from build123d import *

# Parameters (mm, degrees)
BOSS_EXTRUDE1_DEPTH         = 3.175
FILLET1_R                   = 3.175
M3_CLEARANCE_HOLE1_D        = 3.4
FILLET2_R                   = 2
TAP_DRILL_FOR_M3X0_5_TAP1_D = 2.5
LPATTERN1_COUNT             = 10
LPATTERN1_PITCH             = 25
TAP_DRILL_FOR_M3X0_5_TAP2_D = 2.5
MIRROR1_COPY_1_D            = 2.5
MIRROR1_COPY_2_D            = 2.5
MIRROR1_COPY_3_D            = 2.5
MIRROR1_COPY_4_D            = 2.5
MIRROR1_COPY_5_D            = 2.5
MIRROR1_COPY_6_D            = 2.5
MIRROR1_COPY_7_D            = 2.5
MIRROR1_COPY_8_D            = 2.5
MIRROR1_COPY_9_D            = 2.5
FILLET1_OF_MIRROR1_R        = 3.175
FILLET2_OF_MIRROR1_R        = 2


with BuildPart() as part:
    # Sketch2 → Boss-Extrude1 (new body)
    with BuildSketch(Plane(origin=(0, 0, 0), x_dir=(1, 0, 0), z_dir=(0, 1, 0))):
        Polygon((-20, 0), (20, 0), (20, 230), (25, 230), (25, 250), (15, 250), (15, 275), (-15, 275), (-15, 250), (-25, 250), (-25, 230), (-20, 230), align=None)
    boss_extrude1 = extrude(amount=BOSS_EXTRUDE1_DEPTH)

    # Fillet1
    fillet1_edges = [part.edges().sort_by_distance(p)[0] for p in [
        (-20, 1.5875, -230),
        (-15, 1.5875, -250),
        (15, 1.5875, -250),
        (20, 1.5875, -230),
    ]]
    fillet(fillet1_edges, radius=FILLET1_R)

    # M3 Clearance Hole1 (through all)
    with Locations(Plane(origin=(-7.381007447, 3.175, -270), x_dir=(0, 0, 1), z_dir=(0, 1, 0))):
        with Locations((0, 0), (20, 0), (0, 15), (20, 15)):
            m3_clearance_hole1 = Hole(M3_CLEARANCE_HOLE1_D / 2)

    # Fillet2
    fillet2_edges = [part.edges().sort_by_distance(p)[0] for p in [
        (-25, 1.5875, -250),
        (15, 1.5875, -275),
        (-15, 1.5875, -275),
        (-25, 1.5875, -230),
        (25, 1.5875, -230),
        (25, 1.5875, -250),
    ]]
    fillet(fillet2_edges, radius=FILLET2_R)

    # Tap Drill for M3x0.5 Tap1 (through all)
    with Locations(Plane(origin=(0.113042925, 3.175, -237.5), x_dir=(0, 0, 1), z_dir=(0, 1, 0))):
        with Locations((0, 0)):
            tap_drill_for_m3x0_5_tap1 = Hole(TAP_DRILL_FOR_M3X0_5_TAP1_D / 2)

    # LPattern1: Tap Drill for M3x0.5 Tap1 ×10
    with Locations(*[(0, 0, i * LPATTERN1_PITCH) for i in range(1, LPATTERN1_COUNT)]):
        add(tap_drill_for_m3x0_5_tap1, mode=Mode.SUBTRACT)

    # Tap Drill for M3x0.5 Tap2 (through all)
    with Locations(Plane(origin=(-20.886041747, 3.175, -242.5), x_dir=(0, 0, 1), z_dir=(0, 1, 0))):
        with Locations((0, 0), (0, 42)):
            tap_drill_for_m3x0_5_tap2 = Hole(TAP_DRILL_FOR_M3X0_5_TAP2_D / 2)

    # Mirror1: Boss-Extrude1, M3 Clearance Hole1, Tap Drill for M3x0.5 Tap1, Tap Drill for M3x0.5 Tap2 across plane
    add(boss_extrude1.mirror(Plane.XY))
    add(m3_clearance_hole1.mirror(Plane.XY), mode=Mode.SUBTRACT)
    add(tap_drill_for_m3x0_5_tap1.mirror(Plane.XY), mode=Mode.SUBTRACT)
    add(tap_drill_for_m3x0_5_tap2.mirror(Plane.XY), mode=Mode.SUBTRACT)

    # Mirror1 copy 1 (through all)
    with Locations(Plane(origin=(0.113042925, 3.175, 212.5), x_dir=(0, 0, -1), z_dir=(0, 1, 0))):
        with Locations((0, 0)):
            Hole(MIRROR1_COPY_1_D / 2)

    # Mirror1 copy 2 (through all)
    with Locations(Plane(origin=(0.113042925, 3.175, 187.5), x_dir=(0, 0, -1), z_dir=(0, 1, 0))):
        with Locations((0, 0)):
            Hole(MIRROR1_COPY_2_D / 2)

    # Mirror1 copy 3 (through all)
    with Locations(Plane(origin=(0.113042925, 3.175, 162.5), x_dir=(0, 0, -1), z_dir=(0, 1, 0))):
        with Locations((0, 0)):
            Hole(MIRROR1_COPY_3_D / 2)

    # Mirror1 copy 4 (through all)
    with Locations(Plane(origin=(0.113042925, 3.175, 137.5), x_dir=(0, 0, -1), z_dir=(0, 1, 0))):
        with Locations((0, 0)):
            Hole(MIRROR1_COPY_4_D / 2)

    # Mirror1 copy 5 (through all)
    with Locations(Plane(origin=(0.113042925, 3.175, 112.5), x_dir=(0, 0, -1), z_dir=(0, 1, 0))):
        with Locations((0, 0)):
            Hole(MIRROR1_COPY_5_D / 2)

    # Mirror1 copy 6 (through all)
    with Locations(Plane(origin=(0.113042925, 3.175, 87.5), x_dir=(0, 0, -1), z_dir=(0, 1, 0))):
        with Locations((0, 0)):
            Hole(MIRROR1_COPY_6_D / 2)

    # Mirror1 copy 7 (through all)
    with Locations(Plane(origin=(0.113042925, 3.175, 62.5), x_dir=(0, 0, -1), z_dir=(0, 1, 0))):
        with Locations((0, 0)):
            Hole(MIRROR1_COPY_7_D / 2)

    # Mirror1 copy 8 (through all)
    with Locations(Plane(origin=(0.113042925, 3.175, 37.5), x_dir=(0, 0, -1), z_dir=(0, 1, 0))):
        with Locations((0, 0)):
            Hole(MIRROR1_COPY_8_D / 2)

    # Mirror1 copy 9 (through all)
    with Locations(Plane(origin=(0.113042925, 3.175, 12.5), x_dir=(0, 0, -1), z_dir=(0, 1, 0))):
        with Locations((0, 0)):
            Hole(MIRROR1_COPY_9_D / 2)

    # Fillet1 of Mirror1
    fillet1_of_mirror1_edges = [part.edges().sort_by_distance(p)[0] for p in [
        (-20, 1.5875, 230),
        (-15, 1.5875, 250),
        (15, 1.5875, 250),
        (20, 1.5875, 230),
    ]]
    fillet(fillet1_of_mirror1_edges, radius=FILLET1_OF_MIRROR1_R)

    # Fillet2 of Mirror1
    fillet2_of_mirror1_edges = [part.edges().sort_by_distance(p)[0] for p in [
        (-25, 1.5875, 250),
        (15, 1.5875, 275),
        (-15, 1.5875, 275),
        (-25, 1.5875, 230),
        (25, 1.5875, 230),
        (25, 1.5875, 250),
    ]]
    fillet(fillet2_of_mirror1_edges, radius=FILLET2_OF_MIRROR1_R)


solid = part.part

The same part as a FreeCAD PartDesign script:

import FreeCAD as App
import Part
import Sketcher


def edges_at(feature, points):
    """Names of the edges that pass closest to the given points."""
    edges = feature.Shape.Edges
    near = lambda p: min(range(len(edges)), key=lambda i: edges[i].distToShape(Part.Vertex(*p))[0])
    return sorted({f"Edge{near(p) + 1}" for p in points})


def add_polygon(sketch, points):
    """Adds a closed chain of lines whose ends are joined by coincident constraints."""
    first, n = sketch.GeometryCount, len(points)
    for a, b in zip(points, points[1:] + points[:1]):
        sketch.addGeometry(Part.LineSegment(App.Vector(*a, 0), App.Vector(*b, 0)), False)
    for i in range(n):
        sketch.addConstraint(Sketcher.Constraint("Coincident", first + i, 2, first + (i + 1) % n, 1))

doc = App.newDocument("Part")
body = doc.addObject("PartDesign::Body", "Body")

# Sketch on XZ plane
sketch1 = body.newObject("Sketcher::SketchObject", "Sketch")
sketch1.AttachmentSupport = (doc.getObject("XZ_Plane"), [""])
sketch1.MapMode = "FlatFace"
add_polygon(sketch1, [(-20, 0), (20, 0), (20, -230), (25, -230), (25, -250), (15, -250), (15, -275), (-15, -275), (-15, -250), (-25, -250), (-25, -230), (-20, -230)])  # lines 0-11
sketch1.addConstraint([
    Sketcher.Constraint("Horizontal", 0),
    Sketcher.Constraint("Vertical", 1),
    Sketcher.Constraint("Horizontal", 2),
    Sketcher.Constraint("Vertical", 3),
    Sketcher.Constraint("Horizontal", 4),
    Sketcher.Constraint("Vertical", 5),
    Sketcher.Constraint("Horizontal", 6),
    Sketcher.Constraint("Vertical", 7),
    Sketcher.Constraint("Horizontal", 8),
    Sketcher.Constraint("Vertical", 9),
    Sketcher.Constraint("Horizontal", 10),
    Sketcher.Constraint("Vertical", 11),
    Sketcher.Constraint("Symmetric", 0, 2, 11, 2, -1, 1),
    Sketcher.Constraint("Symmetric", 4, 2, 7, 2, -2),
    Sketcher.Constraint("Symmetric", 2, 2, 9, 2, -2),
    Sketcher.Constraint("DistanceX", 0, 1, 0, 2, 40.0),
    Sketcher.Constraint("DistanceX", 2, 1, 2, 2, 5.0),
    Sketcher.Constraint("DistanceX", 4, 2, 4, 1, 10.0),
    Sketcher.Constraint("DistanceY", 1, 2, 1, 1, 230.0),
    Sketcher.Constraint("DistanceY", 3, 2, 3, 1, 20.0),
    Sketcher.Constraint("DistanceY", 5, 2, 5, 1, 25.0),
])
pad1 = body.newObject("PartDesign::Pad", "Pad")
pad1.Profile = sketch1
pad1.Length = 3.175
pad1.Reversed = True
doc.recompute()

fillet = body.newObject("PartDesign::Fillet", "Fillet")
fillet.Base = (pad1, edges_at(pad1, [
    (-20, 1.587, -230),
    (-15, 1.587, -250),
    (15, 1.587, -250),
    (20, 1.587, -230),
]))
fillet.Radius = 3.175

# Sketch on XZ plane
sketch2 = body.newObject("Sketcher::SketchObject", "Sketch001")
sketch2.AttachmentSupport = (doc.getObject("XZ_Plane"), [""])
sketch2.MapMode = "FlatFace"
sketch2.AttachmentOffset = App.Placement(App.Vector(0, 0, -3.175), App.Rotation())
sketch2.addGeometry([
    Part.Circle(App.Vector(-7.4, -270, 0), App.Vector(0, 0, 1), 1.7),
    Part.Circle(App.Vector(-7.4, -250, 0), App.Vector(0, 0, 1), 1.7),
    Part.Circle(App.Vector(7.6, -270, 0), App.Vector(0, 0, 1), 1.7),
    Part.Circle(App.Vector(7.6, -250, 0), App.Vector(0, 0, 1), 1.7),
], False)
sketch2.addConstraint([
    Sketcher.Constraint("Equal", 0, 1),
    Sketcher.Constraint("Equal", 1, 2),
    Sketcher.Constraint("Equal", 2, 3),
    Sketcher.Constraint("Horizontal", 0, 3, 2, 3),
    Sketcher.Constraint("Horizontal", 1, 3, 3, 3),
    Sketcher.Constraint("Vertical", 0, 3, 1, 3),
    Sketcher.Constraint("Vertical", 2, 3, 3, 3),
    Sketcher.Constraint("Diameter", 0, 3.4),
    Sketcher.Constraint("DistanceY", 0, 3, -1, 1, 270.0),
    Sketcher.Constraint("DistanceY", 1, 3, -1, 1, 250.0),
    Sketcher.Constraint("DistanceX", 0, 3, 2, 3, 15.0),
    Sketcher.Constraint("DistanceX", 0, 3, -1, 1, 7.381007),
])
doc.recompute()
hole = body.newObject("PartDesign::Hole", "Hole")
hole.Profile = sketch2
hole.ThreadType = "None"
hole.Diameter = 3.4
hole.DepthType = "ThroughAll"
hole.Reversed = True
doc.recompute()

fillet2 = body.newObject("PartDesign::Fillet", "Fillet001")
fillet2.Base = (hole, edges_at(hole, [
    (-25, 1.587, -250),
    (15, 1.587, -275),
    (-15, 1.587, -275),
    (-25, 1.587, -230),
    (25, 1.587, -230),
    (25, 1.587, -250),
]))
fillet2.Radius = 2

# Sketch on XZ plane
sketch3 = body.newObject("Sketcher::SketchObject", "Sketch002")
sketch3.AttachmentSupport = (doc.getObject("XZ_Plane"), [""])
sketch3.MapMode = "FlatFace"
sketch3.AttachmentOffset = App.Placement(App.Vector(0, 0, -3.175), App.Rotation())
sketch3.addGeometry(Part.Circle(App.Vector(0.1, -237.5, 0), App.Vector(0, 0, 1), 1.2), False)
sketch3.addConstraint([
    Sketcher.Constraint("Diameter", 0, 2.5),
    Sketcher.Constraint("DistanceY", 0, 3, -1, 1, 237.5),
    Sketcher.Constraint("DistanceX", -1, 1, 0, 3, 0.113043),
])
doc.recompute()
hole2 = body.newObject("PartDesign::Hole", "Hole001")
hole2.Profile = sketch3
hole2.ThreadType = "None"
hole2.Diameter = 2.5
hole2.DepthType = "ThroughAll"
hole2.Reversed = True
doc.recompute()

linearpattern = body.newObject("PartDesign::LinearPattern", "LinearPattern")
linearpattern.Originals = [hole2]
linearpattern.Direction = (doc.getObject("Z_Axis"), [""])
linearpattern.Mode = "offset"
linearpattern.Offset = 25
linearpattern.Occurrences = 10
body.Tip = linearpattern

# Sketch on XZ plane
sketch4 = body.newObject("Sketcher::SketchObject", "Sketch003")
sketch4.AttachmentSupport = (doc.getObject("XZ_Plane"), [""])
sketch4.MapMode = "FlatFace"
sketch4.AttachmentOffset = App.Placement(App.Vector(0, 0, -3.175), App.Rotation())
sketch4.addGeometry([
    Part.Circle(App.Vector(-20.9, -242.5, 0), App.Vector(0, 0, 1), 1.2),
    Part.Circle(App.Vector(21.1, -242.5, 0), App.Vector(0, 0, 1), 1.2),
], False)
sketch4.addConstraint([
    Sketcher.Constraint("Equal", 0, 1),
    Sketcher.Constraint("Horizontal", 0, 3, 1, 3),
    Sketcher.Constraint("Diameter", 0, 2.5),
    Sketcher.Constraint("DistanceX", 0, 3, 1, 3, 42.0),
    Sketcher.Constraint("DistanceY", 0, 3, -1, 1, 242.5),
    Sketcher.Constraint("DistanceX", 0, 3, -1, 1, 20.886042),
])
doc.recompute()
hole3 = body.newObject("PartDesign::Hole", "Hole002")
hole3.Profile = sketch4
hole3.ThreadType = "None"
hole3.Diameter = 2.5
hole3.DepthType = "ThroughAll"
hole3.Reversed = True
doc.recompute()

mirrored = body.newObject("PartDesign::Mirrored", "Mirrored")
mirrored.Originals = [pad1, hole, hole2, hole3]
mirrored.MirrorPlane = (doc.getObject("XY_Plane"), [""])
body.Tip = mirrored

# Sketch on XZ plane
sketch5 = body.newObject("Sketcher::SketchObject", "Sketch004")
sketch5.AttachmentSupport = (doc.getObject("XZ_Plane"), [""])
sketch5.MapMode = "FlatFace"
sketch5.AttachmentOffset = App.Placement(App.Vector(0, 0, -3.175), App.Rotation())
sketch5.addGeometry(Part.Circle(App.Vector(0.1, 212.5, 0), App.Vector(0, 0, 1), 1.2), False)
sketch5.addConstraint([
    Sketcher.Constraint("Diameter", 0, 2.5),
    Sketcher.Constraint("DistanceY", -1, 1, 0, 3, 212.5),
    Sketcher.Constraint("DistanceX", -1, 1, 0, 3, 0.113043),
])
doc.recompute()
hole4 = body.newObject("PartDesign::Hole", "Hole003")
hole4.Profile = sketch5
hole4.ThreadType = "None"
hole4.Diameter = 2.5
hole4.DepthType = "ThroughAll"
hole4.Reversed = True

# Sketch on XZ plane
sketch6 = body.newObject("Sketcher::SketchObject", "Sketch005")
sketch6.AttachmentSupport = (doc.getObject("XZ_Plane"), [""])
sketch6.MapMode = "FlatFace"
sketch6.AttachmentOffset = App.Placement(App.Vector(0, 0, -3.175), App.Rotation())
sketch6.addGeometry(Part.Circle(App.Vector(0.1, 187.5, 0), App.Vector(0, 0, 1), 1.2), False)
sketch6.addConstraint([
    Sketcher.Constraint("Diameter", 0, 2.5),
    Sketcher.Constraint("DistanceY", -1, 1, 0, 3, 187.5),
    Sketcher.Constraint("DistanceX", -1, 1, 0, 3, 0.113043),
])
doc.recompute()
hole5 = body.newObject("PartDesign::Hole", "Hole004")
hole5.Profile = sketch6
hole5.ThreadType = "None"
hole5.Diameter = 2.5
hole5.DepthType = "ThroughAll"
hole5.Reversed = True

# Sketch on XZ plane
sketch7 = body.newObject("Sketcher::SketchObject", "Sketch006")
sketch7.AttachmentSupport = (doc.getObject("XZ_Plane"), [""])
sketch7.MapMode = "FlatFace"
sketch7.AttachmentOffset = App.Placement(App.Vector(0, 0, -3.175), App.Rotation())
sketch7.addGeometry(Part.Circle(App.Vector(0.1, 162.5, 0), App.Vector(0, 0, 1), 1.2), False)
sketch7.addConstraint([
    Sketcher.Constraint("Diameter", 0, 2.5),
    Sketcher.Constraint("DistanceY", -1, 1, 0, 3, 162.5),
    Sketcher.Constraint("DistanceX", -1, 1, 0, 3, 0.113043),
])
doc.recompute()
hole6 = body.newObject("PartDesign::Hole", "Hole005")
hole6.Profile = sketch7
hole6.ThreadType = "None"
hole6.Diameter = 2.5
hole6.DepthType = "ThroughAll"
hole6.Reversed = True

# Sketch on XZ plane
sketch8 = body.newObject("Sketcher::SketchObject", "Sketch007")
sketch8.AttachmentSupport = (doc.getObject("XZ_Plane"), [""])
sketch8.MapMode = "FlatFace"
sketch8.AttachmentOffset = App.Placement(App.Vector(0, 0, -3.175), App.Rotation())
sketch8.addGeometry(Part.Circle(App.Vector(0.1, 137.5, 0), App.Vector(0, 0, 1), 1.2), False)
sketch8.addConstraint([
    Sketcher.Constraint("Diameter", 0, 2.5),
    Sketcher.Constraint("DistanceY", -1, 1, 0, 3, 137.5),
    Sketcher.Constraint("DistanceX", -1, 1, 0, 3, 0.113043),
])
doc.recompute()
hole7 = body.newObject("PartDesign::Hole", "Hole006")
hole7.Profile = sketch8
hole7.ThreadType = "None"
hole7.Diameter = 2.5
hole7.DepthType = "ThroughAll"
hole7.Reversed = True

# Sketch on XZ plane
sketch9 = body.newObject("Sketcher::SketchObject", "Sketch008")
sketch9.AttachmentSupport = (doc.getObject("XZ_Plane"), [""])
sketch9.MapMode = "FlatFace"
sketch9.AttachmentOffset = App.Placement(App.Vector(0, 0, -3.175), App.Rotation())
sketch9.addGeometry(Part.Circle(App.Vector(0.1, 112.5, 0), App.Vector(0, 0, 1), 1.2), False)
sketch9.addConstraint([
    Sketcher.Constraint("Diameter", 0, 2.5),
    Sketcher.Constraint("DistanceY", -1, 1, 0, 3, 112.5),
    Sketcher.Constraint("DistanceX", -1, 1, 0, 3, 0.113043),
])
doc.recompute()
hole8 = body.newObject("PartDesign::Hole", "Hole007")
hole8.Profile = sketch9
hole8.ThreadType = "None"
hole8.Diameter = 2.5
hole8.DepthType = "ThroughAll"
hole8.Reversed = True

# Sketch on XZ plane
sketch10 = body.newObject("Sketcher::SketchObject", "Sketch009")
sketch10.AttachmentSupport = (doc.getObject("XZ_Plane"), [""])
sketch10.MapMode = "FlatFace"
sketch10.AttachmentOffset = App.Placement(App.Vector(0, 0, -3.175), App.Rotation())
sketch10.addGeometry(Part.Circle(App.Vector(0.1, 87.5, 0), App.Vector(0, 0, 1), 1.2), False)
sketch10.addConstraint([
    Sketcher.Constraint("Diameter", 0, 2.5),
    Sketcher.Constraint("DistanceY", -1, 1, 0, 3, 87.5),
    Sketcher.Constraint("DistanceX", -1, 1, 0, 3, 0.113043),
])
doc.recompute()
hole9 = body.newObject("PartDesign::Hole", "Hole008")
hole9.Profile = sketch10
hole9.ThreadType = "None"
hole9.Diameter = 2.5
hole9.DepthType = "ThroughAll"
hole9.Reversed = True

# Sketch on XZ plane
sketch11 = body.newObject("Sketcher::SketchObject", "Sketch010")
sketch11.AttachmentSupport = (doc.getObject("XZ_Plane"), [""])
sketch11.MapMode = "FlatFace"
sketch11.AttachmentOffset = App.Placement(App.Vector(0, 0, -3.175), App.Rotation())
sketch11.addGeometry(Part.Circle(App.Vector(0.1, 62.5, 0), App.Vector(0, 0, 1), 1.2), False)
sketch11.addConstraint([
    Sketcher.Constraint("Diameter", 0, 2.5),
    Sketcher.Constraint("DistanceY", -1, 1, 0, 3, 62.5),
    Sketcher.Constraint("DistanceX", -1, 1, 0, 3, 0.113043),
])
doc.recompute()
hole10 = body.newObject("PartDesign::Hole", "Hole009")
hole10.Profile = sketch11
hole10.ThreadType = "None"
hole10.Diameter = 2.5
hole10.DepthType = "ThroughAll"
hole10.Reversed = True

# Sketch on XZ plane
sketch12 = body.newObject("Sketcher::SketchObject", "Sketch011")
sketch12.AttachmentSupport = (doc.getObject("XZ_Plane"), [""])
sketch12.MapMode = "FlatFace"
sketch12.AttachmentOffset = App.Placement(App.Vector(0, 0, -3.175), App.Rotation())
sketch12.addGeometry(Part.Circle(App.Vector(0.1, 37.5, 0), App.Vector(0, 0, 1), 1.2), False)
sketch12.addConstraint([
    Sketcher.Constraint("Diameter", 0, 2.5),
    Sketcher.Constraint("DistanceY", -1, 1, 0, 3, 37.5),
    Sketcher.Constraint("DistanceX", -1, 1, 0, 3, 0.113043),
])
doc.recompute()
hole11 = body.newObject("PartDesign::Hole", "Hole010")
hole11.Profile = sketch12
hole11.ThreadType = "None"
hole11.Diameter = 2.5
hole11.DepthType = "ThroughAll"
hole11.Reversed = True

# Sketch on XZ plane
sketch13 = body.newObject("Sketcher::SketchObject", "Sketch012")
sketch13.AttachmentSupport = (doc.getObject("XZ_Plane"), [""])
sketch13.MapMode = "FlatFace"
sketch13.AttachmentOffset = App.Placement(App.Vector(0, 0, -3.175), App.Rotation())
sketch13.addGeometry(Part.Circle(App.Vector(0.1, 12.5, 0), App.Vector(0, 0, 1), 1.2), False)
sketch13.addConstraint([
    Sketcher.Constraint("Diameter", 0, 2.5),
    Sketcher.Constraint("DistanceY", -1, 1, 0, 3, 12.5),
    Sketcher.Constraint("DistanceX", -1, 1, 0, 3, 0.113043),
])
doc.recompute()
hole12 = body.newObject("PartDesign::Hole", "Hole011")
hole12.Profile = sketch13
hole12.ThreadType = "None"
hole12.Diameter = 2.5
hole12.DepthType = "ThroughAll"
hole12.Reversed = True
doc.recompute()

fillet3 = body.newObject("PartDesign::Fillet", "Fillet002")
fillet3.Base = (hole12, edges_at(hole12, [
    (-20, 1.587, 230),
    (-15, 1.587, 250),
    (15, 1.587, 250),
    (20, 1.587, 230),
]))
fillet3.Radius = 3.175
doc.recompute()

fillet4 = body.newObject("PartDesign::Fillet", "Fillet003")
fillet4.Base = (fillet3, edges_at(fillet3, [
    (-25, 1.587, 250),
    (15, 1.587, 275),
    (-15, 1.587, 275),
    (-25, 1.587, 230),
    (25, 1.587, 230),
    (25, 1.587, 250),
]))
fillet4.Radius = 2

doc.recompute()
